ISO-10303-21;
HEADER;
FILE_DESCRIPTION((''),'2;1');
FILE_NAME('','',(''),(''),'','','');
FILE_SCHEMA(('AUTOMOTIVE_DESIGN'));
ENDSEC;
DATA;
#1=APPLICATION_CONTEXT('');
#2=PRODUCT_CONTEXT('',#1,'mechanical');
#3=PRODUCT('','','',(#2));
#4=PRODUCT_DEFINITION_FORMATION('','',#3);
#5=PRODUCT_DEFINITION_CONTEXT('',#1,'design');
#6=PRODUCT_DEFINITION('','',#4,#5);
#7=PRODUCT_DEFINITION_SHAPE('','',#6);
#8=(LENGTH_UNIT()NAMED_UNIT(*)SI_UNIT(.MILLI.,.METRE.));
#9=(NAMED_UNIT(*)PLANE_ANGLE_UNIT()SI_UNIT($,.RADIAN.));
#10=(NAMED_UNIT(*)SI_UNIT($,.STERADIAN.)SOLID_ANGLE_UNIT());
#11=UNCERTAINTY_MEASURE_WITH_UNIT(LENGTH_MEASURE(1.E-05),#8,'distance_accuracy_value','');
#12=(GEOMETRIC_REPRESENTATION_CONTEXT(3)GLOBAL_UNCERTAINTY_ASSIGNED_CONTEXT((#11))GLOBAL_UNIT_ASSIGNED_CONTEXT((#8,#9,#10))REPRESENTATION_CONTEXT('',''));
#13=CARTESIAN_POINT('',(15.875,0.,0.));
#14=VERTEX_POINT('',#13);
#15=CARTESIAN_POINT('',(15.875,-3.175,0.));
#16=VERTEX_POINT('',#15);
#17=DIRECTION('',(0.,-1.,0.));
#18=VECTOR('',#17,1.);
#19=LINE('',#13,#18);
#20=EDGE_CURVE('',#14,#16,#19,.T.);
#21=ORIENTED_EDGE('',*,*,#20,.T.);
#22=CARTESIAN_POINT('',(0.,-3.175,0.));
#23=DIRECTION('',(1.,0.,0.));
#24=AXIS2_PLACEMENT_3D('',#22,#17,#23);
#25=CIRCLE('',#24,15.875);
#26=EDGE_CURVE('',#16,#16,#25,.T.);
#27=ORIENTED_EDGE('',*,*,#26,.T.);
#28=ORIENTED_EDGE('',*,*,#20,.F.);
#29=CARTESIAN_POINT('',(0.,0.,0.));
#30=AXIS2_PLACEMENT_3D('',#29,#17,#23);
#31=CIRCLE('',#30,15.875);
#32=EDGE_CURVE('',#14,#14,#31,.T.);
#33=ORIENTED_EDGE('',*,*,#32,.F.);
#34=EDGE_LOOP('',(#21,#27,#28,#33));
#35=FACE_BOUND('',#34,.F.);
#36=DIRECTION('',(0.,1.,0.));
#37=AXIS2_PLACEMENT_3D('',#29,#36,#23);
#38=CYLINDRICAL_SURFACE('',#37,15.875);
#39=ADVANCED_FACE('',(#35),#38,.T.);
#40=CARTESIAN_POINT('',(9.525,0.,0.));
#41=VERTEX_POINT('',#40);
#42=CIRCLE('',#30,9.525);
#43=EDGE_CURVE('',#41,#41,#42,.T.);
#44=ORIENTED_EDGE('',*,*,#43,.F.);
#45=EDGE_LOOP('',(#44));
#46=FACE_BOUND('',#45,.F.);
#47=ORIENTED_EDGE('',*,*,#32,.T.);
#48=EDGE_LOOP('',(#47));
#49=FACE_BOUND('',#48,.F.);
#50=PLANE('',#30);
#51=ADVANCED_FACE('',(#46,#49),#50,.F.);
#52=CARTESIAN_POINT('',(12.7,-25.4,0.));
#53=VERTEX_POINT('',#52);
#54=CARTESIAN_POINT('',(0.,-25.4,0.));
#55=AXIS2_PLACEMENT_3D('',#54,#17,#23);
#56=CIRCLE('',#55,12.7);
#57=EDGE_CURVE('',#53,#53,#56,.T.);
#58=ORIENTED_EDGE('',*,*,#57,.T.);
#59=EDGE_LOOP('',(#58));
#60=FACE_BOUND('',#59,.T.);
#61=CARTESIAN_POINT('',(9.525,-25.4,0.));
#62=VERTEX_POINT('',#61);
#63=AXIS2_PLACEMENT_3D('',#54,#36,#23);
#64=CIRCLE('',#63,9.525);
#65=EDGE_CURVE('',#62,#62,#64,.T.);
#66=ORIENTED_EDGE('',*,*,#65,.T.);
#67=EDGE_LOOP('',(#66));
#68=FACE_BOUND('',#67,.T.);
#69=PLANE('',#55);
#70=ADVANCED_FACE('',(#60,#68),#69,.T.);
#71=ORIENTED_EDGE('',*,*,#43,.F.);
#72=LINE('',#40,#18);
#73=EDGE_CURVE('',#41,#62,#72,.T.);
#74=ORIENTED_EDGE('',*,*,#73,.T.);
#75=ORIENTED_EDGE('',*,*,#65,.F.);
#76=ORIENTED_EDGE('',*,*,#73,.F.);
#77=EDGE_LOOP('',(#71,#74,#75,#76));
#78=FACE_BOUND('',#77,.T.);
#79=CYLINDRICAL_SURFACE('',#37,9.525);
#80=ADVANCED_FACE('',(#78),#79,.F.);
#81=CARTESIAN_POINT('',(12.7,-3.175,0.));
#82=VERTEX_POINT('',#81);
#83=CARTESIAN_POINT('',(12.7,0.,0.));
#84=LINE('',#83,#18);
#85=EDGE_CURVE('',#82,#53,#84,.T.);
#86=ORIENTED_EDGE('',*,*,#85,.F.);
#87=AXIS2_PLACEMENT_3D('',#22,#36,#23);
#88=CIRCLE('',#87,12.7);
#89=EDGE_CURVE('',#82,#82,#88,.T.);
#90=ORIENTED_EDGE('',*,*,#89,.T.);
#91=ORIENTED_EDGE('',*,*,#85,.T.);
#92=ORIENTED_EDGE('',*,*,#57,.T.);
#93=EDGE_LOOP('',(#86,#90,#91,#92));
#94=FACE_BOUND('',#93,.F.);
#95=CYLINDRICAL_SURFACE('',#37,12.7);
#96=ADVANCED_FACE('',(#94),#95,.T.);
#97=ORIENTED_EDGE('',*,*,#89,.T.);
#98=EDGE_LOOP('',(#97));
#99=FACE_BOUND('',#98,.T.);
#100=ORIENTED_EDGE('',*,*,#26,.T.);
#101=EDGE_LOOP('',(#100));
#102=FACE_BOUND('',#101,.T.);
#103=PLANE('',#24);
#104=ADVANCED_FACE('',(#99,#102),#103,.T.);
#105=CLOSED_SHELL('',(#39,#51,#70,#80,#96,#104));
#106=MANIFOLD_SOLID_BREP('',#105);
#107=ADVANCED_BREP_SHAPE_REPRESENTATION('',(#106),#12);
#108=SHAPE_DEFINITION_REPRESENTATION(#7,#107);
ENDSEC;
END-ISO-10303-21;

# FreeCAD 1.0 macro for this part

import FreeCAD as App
import Part
import Sketcher
Q = App.Units.Quantity

doc = App.newDocument("Part")
params = doc.addObject("Spreadsheet::Sheet", "Params")
for row, (alias, value) in enumerate([
    ("sketch1_diameter", "1 in"),
    ("pad1_length", "1 in"),
    ("sketch2_diameter", "1.25 in"),
    ("pad2_length", "0.125 in"),
    ("sketch3_diameter", "0.75 in"),
], start=1):
    params.set(f"A{row}", alias)
    params.set(f"B{row}", "=" + value)
    params.setAlias(f"B{row}", alias)

body = doc.addObject("PartDesign::Body", "Body")

# Sketch on XZ plane
sketch1 = doc.addObject("Sketcher::SketchObject", "Sketch")
body.addObject(sketch1)
sketch1.AttachmentSupport = (doc.XZ_Plane, [""])
sketch1.MapMode = "FlatFace"
sketch1.addGeometry(Part.Circle(App.Vector(0, 0, 0), App.Vector(0, 0, 1), 12.7), False)
sketch1.addConstraint([
    Sketcher.Constraint("Coincident", 0, 3, -1, 1),
    Sketcher.Constraint("Diameter", 0, Q("1 in")),
])
sketch1.setExpression("Constraints[1]", "Params.sketch1_diameter")
pad1 = doc.addObject("PartDesign::Pad", "Pad")
body.addObject(pad1)
pad1.Profile = sketch1
pad1.setExpression("Length", "Params.pad1_length")

# Sketch on XZ plane
sketch2 = doc.addObject("Sketcher::SketchObject", "Sketch001")
body.addObject(sketch2)
sketch2.AttachmentSupport = (doc.XZ_Plane, [""])
sketch2.MapMode = "FlatFace"
sketch2.addGeometry(Part.Circle(App.Vector(0, 0, 0), App.Vector(0, 0, 1), 15.875), False)
sketch2.addConstraint([
    Sketcher.Constraint("Coincident", 0, 3, -1, 1),
    Sketcher.Constraint("Diameter", 0, Q("1.25 in")),
])
sketch2.setExpression("Constraints[1]", "Params.sketch2_diameter")
pad2 = doc.addObject("PartDesign::Pad", "Pad001")
body.addObject(pad2)
pad2.Profile = sketch2
pad2.setExpression("Length", "Params.pad2_length")

# Sketch on XZ plane
sketch3 = doc.addObject("Sketcher::SketchObject", "Sketch002")
body.addObject(sketch3)
sketch3.AttachmentSupport = (doc.XZ_Plane, [""])
sketch3.MapMode = "FlatFace"
sketch3.addGeometry(Part.Circle(App.Vector(0, 0, 0), App.Vector(0, 0, 1), 9.525), False)
sketch3.addConstraint([
    Sketcher.Constraint("Coincident", 0, 3, -1, 1),
    Sketcher.Constraint("Diameter", 0, Q("0.75 in")),
])
sketch3.setExpression("Constraints[1]", "Params.sketch3_diameter")
pocket1 = doc.addObject("PartDesign::Pocket", "Pocket")
body.addObject(pocket1)
pocket1.Profile = sketch3
pocket1.Type = "ThroughAll"
pocket1.Reversed = True

doc.recompute()
